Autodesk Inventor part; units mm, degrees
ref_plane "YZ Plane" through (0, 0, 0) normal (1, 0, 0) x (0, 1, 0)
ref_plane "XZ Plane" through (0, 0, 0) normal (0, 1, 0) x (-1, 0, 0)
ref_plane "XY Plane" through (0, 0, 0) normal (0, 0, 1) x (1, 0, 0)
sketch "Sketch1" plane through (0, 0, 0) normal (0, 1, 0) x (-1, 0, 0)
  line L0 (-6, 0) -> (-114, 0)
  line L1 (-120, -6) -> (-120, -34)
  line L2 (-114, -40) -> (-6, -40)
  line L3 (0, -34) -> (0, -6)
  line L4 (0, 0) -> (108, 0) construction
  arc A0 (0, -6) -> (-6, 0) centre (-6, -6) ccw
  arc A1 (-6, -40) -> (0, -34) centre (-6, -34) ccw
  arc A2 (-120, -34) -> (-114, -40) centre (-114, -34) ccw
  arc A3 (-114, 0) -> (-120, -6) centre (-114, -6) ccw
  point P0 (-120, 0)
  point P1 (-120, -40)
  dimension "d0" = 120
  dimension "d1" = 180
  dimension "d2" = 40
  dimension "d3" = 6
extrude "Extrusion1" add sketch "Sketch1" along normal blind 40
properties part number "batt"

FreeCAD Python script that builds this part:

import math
import FreeCAD as App
import Part
import Sketcher

V = App.Vector

doc = App.newDocument("Part")
body = doc.addObject("PartDesign::Body", "Body")

# Sketch on XZ plane
sketch1 = body.newObject("Sketcher::SketchObject", "Sketch")
sketch1.AttachmentSupport = (doc.getObject("XZ_Plane"), [""])
sketch1.MapMode = "FlatFace"
sketch1.addGeometry([
    Part.ArcOfCircle(Part.Circle(V(6, -6, 0), V(0, 0, 1), 6), math.radians(90), math.radians(180)),  # 0
    Part.LineSegment(V(6, 0, 0), V(114, 0, 0)),  # 1
    Part.ArcOfCircle(Part.Circle(V(114, -6, 0), V(0, 0, 1), 6), math.radians(0), math.radians(90)),  # 2
    Part.LineSegment(V(120, -6, 0), V(120, -34, 0)),  # 3
    Part.ArcOfCircle(Part.Circle(V(114, -34, 0), V(0, 0, 1), 6), math.radians(-90), math.radians(0)),  # 4
    Part.LineSegment(V(114, -40, 0), V(6, -40, 0)),  # 5
    Part.ArcOfCircle(Part.Circle(V(6, -34, 0), V(0, 0, 1), 6), math.radians(180), math.radians(270)),  # 6
    Part.LineSegment(V(0, -34, 0), V(0, -6, 0)),  # 7
], False)
sketch1.addConstraint([
    Sketcher.Constraint("Tangent", 0, 1, 1, 1),
    Sketcher.Constraint("Tangent", 1, 2, 2, 2),
    Sketcher.Constraint("Tangent", 2, 1, 3, 1),
    Sketcher.Constraint("Tangent", 3, 2, 4, 2),
    Sketcher.Constraint("Tangent", 4, 1, 5, 1),
    Sketcher.Constraint("Tangent", 5, 2, 6, 2),
    Sketcher.Constraint("Tangent", 6, 1, 7, 1),
    Sketcher.Constraint("Tangent", 7, 2, 0, 2),
    Sketcher.Constraint("Horizontal", 1),
    Sketcher.Constraint("Vertical", 3),
    Sketcher.Constraint("Horizontal", 5),
    Sketcher.Constraint("Vertical", 7),
    Sketcher.Constraint("Equal", 0, 2),
    Sketcher.Constraint("Equal", 2, 4),
    Sketcher.Constraint("Equal", 4, 6),
    Sketcher.Constraint("PointOnObject", 0, 1, -1),
    Sketcher.Constraint("PointOnObject", 6, 1, -2),
    Sketcher.Constraint("Radius", 0, 6.0),
    Sketcher.Constraint("DistanceX", -1, 1, 2, 1, 120.0),
    Sketcher.Constraint("DistanceY", 4, 1, -1, 1, 40.0),
])
pad1 = body.newObject("PartDesign::Pad", "Pad")
pad1.Profile = sketch1
pad1.Length = 40
pad1.Reversed = True

doc.recompute()
